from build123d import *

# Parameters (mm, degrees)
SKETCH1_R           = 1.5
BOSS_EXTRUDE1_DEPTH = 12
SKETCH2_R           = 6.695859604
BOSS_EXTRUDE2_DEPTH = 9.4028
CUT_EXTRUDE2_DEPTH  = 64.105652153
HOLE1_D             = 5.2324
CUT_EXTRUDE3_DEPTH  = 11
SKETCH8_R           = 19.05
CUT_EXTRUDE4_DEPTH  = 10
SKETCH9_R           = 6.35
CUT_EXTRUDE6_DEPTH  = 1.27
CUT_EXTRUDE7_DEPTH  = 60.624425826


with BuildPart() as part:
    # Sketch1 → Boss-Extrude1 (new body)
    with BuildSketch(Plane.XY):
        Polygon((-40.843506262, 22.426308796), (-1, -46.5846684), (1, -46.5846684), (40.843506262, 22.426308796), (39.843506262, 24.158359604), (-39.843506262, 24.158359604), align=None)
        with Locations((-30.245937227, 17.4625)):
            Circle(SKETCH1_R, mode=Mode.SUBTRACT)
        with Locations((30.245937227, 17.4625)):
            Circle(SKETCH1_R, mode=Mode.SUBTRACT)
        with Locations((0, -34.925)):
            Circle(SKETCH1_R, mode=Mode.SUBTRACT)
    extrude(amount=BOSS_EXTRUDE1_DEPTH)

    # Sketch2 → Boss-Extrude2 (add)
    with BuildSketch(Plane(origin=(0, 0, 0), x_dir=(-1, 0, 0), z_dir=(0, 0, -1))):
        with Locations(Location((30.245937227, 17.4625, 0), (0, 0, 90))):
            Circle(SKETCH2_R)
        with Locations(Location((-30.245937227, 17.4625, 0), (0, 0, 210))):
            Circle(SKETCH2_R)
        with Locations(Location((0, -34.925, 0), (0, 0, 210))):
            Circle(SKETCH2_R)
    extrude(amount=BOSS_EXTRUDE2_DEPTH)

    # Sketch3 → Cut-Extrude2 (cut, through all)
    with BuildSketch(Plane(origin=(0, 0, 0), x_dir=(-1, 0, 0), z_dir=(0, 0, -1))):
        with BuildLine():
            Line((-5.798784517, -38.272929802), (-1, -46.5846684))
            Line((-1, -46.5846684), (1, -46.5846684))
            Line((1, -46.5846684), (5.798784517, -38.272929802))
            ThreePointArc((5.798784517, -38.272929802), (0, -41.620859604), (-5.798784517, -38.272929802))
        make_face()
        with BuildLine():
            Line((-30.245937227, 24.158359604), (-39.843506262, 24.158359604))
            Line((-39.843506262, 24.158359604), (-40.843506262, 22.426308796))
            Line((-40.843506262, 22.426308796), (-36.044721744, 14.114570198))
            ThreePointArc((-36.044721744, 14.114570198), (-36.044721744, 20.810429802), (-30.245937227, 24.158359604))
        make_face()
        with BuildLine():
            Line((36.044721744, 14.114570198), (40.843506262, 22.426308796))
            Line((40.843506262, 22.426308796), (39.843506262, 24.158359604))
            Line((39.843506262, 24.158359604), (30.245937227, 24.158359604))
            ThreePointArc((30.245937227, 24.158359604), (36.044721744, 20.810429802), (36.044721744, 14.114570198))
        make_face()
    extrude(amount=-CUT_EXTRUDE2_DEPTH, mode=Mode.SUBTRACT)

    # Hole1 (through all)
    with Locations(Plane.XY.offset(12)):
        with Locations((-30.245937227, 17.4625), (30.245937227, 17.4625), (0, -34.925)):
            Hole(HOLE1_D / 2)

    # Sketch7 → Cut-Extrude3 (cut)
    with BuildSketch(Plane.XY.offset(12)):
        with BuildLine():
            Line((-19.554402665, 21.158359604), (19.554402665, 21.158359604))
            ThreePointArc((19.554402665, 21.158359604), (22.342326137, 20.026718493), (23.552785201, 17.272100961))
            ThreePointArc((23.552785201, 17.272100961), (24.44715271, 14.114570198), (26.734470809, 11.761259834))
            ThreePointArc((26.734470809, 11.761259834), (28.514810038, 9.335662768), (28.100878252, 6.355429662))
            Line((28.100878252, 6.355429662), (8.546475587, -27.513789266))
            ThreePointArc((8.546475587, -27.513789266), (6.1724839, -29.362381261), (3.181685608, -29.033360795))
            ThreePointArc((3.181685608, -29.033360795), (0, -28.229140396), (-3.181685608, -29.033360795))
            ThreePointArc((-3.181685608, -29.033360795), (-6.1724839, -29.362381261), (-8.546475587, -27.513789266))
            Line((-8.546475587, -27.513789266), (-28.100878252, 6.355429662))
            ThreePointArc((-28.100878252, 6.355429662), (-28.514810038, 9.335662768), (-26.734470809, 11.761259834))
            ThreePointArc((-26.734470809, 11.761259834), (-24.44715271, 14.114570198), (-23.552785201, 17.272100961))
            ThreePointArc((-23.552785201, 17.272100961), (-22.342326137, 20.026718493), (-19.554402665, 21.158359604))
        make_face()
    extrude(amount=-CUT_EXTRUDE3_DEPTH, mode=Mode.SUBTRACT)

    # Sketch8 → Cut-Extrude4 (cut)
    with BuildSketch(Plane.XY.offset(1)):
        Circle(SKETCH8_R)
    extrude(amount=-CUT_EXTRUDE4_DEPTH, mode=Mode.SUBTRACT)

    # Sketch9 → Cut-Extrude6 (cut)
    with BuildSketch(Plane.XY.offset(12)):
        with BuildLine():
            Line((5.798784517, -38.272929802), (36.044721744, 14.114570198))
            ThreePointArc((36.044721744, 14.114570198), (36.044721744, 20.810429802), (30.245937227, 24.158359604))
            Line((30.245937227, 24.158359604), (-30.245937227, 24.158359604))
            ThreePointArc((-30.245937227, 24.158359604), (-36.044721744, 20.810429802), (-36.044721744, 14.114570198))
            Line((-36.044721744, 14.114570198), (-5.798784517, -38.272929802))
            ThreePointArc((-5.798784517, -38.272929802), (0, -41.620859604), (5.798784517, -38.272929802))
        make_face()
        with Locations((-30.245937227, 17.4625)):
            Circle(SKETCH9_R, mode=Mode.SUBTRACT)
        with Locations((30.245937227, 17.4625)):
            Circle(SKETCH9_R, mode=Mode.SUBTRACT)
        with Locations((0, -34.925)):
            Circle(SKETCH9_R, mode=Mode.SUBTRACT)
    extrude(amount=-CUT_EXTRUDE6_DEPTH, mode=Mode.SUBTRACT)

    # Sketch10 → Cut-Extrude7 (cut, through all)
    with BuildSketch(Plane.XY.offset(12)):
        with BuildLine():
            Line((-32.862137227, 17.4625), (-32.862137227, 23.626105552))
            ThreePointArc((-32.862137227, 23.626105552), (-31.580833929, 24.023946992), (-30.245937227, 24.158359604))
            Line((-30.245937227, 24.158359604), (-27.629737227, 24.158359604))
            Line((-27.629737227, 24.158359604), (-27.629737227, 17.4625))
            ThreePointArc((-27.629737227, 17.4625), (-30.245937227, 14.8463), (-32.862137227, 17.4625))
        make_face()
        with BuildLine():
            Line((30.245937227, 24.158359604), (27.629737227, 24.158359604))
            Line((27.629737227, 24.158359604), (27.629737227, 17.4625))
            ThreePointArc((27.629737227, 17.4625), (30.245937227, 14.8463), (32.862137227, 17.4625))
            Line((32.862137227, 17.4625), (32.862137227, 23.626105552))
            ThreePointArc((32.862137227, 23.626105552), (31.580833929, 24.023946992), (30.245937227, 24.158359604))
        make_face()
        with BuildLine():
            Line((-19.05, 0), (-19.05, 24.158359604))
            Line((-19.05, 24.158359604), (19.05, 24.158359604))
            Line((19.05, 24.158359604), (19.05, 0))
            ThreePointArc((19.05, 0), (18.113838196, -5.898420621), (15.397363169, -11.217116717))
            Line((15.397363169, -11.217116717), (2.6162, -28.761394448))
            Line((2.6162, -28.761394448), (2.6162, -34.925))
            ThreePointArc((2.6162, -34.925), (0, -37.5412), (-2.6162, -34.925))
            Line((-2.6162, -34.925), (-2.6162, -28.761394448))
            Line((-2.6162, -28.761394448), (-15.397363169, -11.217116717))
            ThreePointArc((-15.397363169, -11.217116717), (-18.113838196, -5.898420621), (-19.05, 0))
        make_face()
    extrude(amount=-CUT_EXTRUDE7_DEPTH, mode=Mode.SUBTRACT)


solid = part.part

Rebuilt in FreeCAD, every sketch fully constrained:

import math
import FreeCAD as App
import Part
import Sketcher
from FreeCAD import Vector
Q = App.Units.Quantity


def add_polygon(sketch, points):
    """Adds a closed chain of lines whose ends are joined by coincident constraints."""
    first, n = sketch.GeometryCount, len(points)
    for a, b in zip(points, points[1:] + points[:1]):
        sketch.addGeometry(Part.LineSegment(App.Vector(*a, 0), App.Vector(*b, 0)), False)
    for i in range(n):
        sketch.addConstraint(Sketcher.Constraint("Coincident", first + i, 2, first + (i + 1) % n, 1))

doc = App.newDocument("Part")
params = doc.addObject("Spreadsheet::Sheet", "Params")
for row, (alias, value) in enumerate([
    ("sketch1_diameter", "3 mm"),
    ("sketch1_width", "2 mm"),
    ("sketch1_length", "2 mm"),
    ("pad1_length", "12 mm"),
    ("pad2_length", "9.4028 mm"),
    ("sketch3_width", "2 mm"),
    ("hole_diameter", "5.2324 mm"),
    ("sketch5_radius", "4 mm"),
    ("pocket2_length", "11 mm"),
    ("sketch6_diameter", "38.1 mm"),
    ("pocket3_length", "10 mm"),
    ("sketch7_diameter", "12.7 mm"),
    ("pocket4_length", "1.27 mm"),
    ("sketch8_radius", "19.05 mm"),
], start=1):
    params.set(f"A{row}", alias)
    params.set(f"B{row}", "=" + value)
    params.setAlias(f"B{row}", alias)

body = doc.addObject("PartDesign::Body", "Body")

sketch1 = body.newObject("Sketcher::SketchObject", "Sketch")
sketch1.AttachmentSupport = (doc.getObject("XY_Plane"), [""])
sketch1.MapMode = "FlatFace"
add_polygon(sketch1, [(-40.8, 22.4), (-1, -46.6), (1, -46.6), (40.8, 22.4), (39.8, 24.2), (-39.8, 24.2)])
sketch1.addGeometry(Part.Circle(Vector(0, -34.9, 0), Vector(0, 0, 1), 1.5), False)
sketch1.addGeometry(Part.Circle(Vector(-30.2, 17.5, 0), Vector(0, 0, 1), 1.5), False)
sketch1.addGeometry(Part.Circle(Vector(30.2, 17.5, 0), Vector(0, 0, 1), 1.5), False)
sketch1.addConstraint([
    Sketcher.Constraint("Horizontal", 1),
    Sketcher.Constraint("Horizontal", 4),
    Sketcher.Constraint("Equal", 6, 7),
    Sketcher.Constraint("Equal", 7, 8),
    Sketcher.Constraint("Symmetric", 7, 3, 8, 3, -2),
    Sketcher.Constraint("Symmetric", 2, 2, 5, 2, -2),
    Sketcher.Constraint("PointOnObject", 6, 3, -2),
    Sketcher.Constraint("Parallel", 0, 3),
    Sketcher.Constraint("Parallel", 2, 5),
    Sketcher.Constraint("Equal", 0, 2),
    Sketcher.Constraint("Diameter", 6, Q("3 mm")),
    Sketcher.Constraint("DistanceX", 1, 1, 1, 2, Q("2 mm")),
    Sketcher.Constraint("Angle", 0, Q("-60 deg")),
    Sketcher.Constraint("Distance", 3, Q("2 mm")),
    Sketcher.Constraint("DistanceY", 6, 3, -1, 1, Q("34.925 mm")),
    Sketcher.Constraint("DistanceY", -1, 1, 7, 3, Q("17.4625 mm")),
    Sketcher.Constraint("DistanceX", 4, 2, 4, 1, Q("79.687013 mm")),
    Sketcher.Constraint("DistanceY", 0, 2, -1, 1, Q("46.584668 mm")),
    Sketcher.Constraint("DistanceX", 8, 3, 2, 2, Q("10.597569 mm")),
])
sketch1.setExpression("Constraints[16]", "Params.sketch1_diameter")
sketch1.setExpression("Constraints[17]", "Params.sketch1_width")
sketch1.setExpression("Constraints[19]", "Params.sketch1_length")
pad1 = body.newObject("PartDesign::Pad", "Pad")
pad1.Profile = sketch1
pad1.setExpression("Length", "Params.pad1_length")

sketch2 = body.newObject("Sketcher::SketchObject", "Sketch001")
sketch2.AttachmentSupport = (doc.getObject("XY_Plane"), [""])
sketch2.MapMode = "FlatFace"
sketch2.addGeometry([
    Part.Circle(Vector(-30, 17, 0), Vector(0, 0, 1), 7),
    Part.Circle(Vector(30, 17, 0), Vector(0, 0, 1), 7),
    Part.Circle(Vector(0, -35, 0), Vector(0, 0, 1), 7),
], False)
sketch2.addConstraint([
    Sketcher.Constraint("Equal", 0, 1),
    Sketcher.Constraint("Equal", 1, 2),
    Sketcher.Constraint("Symmetric", 0, 3, 1, 3, -2),
    Sketcher.Constraint("PointOnObject", 2, 3, -2),
    Sketcher.Constraint("Diameter", 0, Q("13.391719 mm")),
    Sketcher.Constraint("DistanceY", 2, 3, -1, 1, Q("34.925 mm")),
    Sketcher.Constraint("DistanceY", -1, 1, 0, 3, Q("17.4625 mm")),
    Sketcher.Constraint("DistanceX", 0, 3, -1, 1, Q("30.245937 mm")),
])
pad2 = body.newObject("PartDesign::Pad", "Pad001")
pad2.Profile = sketch2
pad2.setExpression("Length", "Params.pad2_length")
pad2.Reversed = True

sketch3 = body.newObject("Sketcher::SketchObject", "Sketch002")
sketch3.AttachmentSupport = (doc.getObject("XY_Plane"), [""])
sketch3.MapMode = "FlatFace"
sketch3.addGeometry([
    Part.LineSegment(Vector(5.8, -38.3, 0), Vector(1, -46.6, 0)),
    Part.LineSegment(Vector(1, -46.6, 0), Vector(-1, -46.6, 0)),
    Part.LineSegment(Vector(-1, -46.6, 0), Vector(-5.8, -38.3, 0)),
    Part.ArcOfCircle(Part.Circle(Vector(0, -34.9, 0), Vector(0, 0, 1), 6.7), math.radians(-150), math.radians(-30)),
    Part.LineSegment(Vector(30.2, 24.2, 0), Vector(39.8, 24.2, 0)),
    Part.LineSegment(Vector(39.8, 24.2, 0), Vector(40.8, 22.4, 0)),
    Part.LineSegment(Vector(40.8, 22.4, 0), Vector(36, 14.1, 0)),
    Part.ArcOfCircle(Part.Circle(Vector(30.2, 17.5, 0), Vector(0, 0, 1), 6.7), math.radians(-30), math.radians(90)),
    Part.LineSegment(Vector(-36, 14.1, 0), Vector(-40.8, 22.4, 0)),
    Part.LineSegment(Vector(-40.8, 22.4, 0), Vector(-39.8, 24.2, 0)),
    Part.LineSegment(Vector(-39.8, 24.2, 0), Vector(-30.2, 24.2, 0)),
    Part.ArcOfCircle(Part.Circle(Vector(-30.2, 17.5, 0), Vector(0, 0, 1), 6.7), math.radians(90), math.radians(210)),
], False)
sketch3.addConstraint([
    Sketcher.Constraint("Coincident", 0, 2, 1, 1),
    Sketcher.Constraint("Coincident", 1, 2, 2, 1),
    Sketcher.Constraint("Tangent", 2, 2, 3, 1),
    Sketcher.Constraint("Tangent", 3, 2, 0, 1),
    Sketcher.Constraint("Coincident", 4, 2, 5, 1),
    Sketcher.Constraint("Coincident", 5, 2, 6, 1),
    Sketcher.Constraint("Tangent", 6, 2, 7, 1),
    Sketcher.Constraint("Tangent", 7, 2, 4, 1),
    Sketcher.Constraint("Coincident", 8, 2, 9, 1),
    Sketcher.Constraint("Coincident", 9, 2, 10, 1),
    Sketcher.Constraint("Tangent", 10, 2, 11, 1),
    Sketcher.Constraint("Tangent", 11, 2, 8, 1),
    Sketcher.Constraint("Horizontal", 1),
    Sketcher.Constraint("Horizontal", 4),
    Sketcher.Constraint("Horizontal", 10),
    Sketcher.Constraint("Equal", 3, 7),
    Sketcher.Constraint("Equal", 7, 11),
    Sketcher.Constraint("Symmetric", 7, 3, 11, 3, -2),
    Sketcher.Constraint("Symmetric", 2, 2, 3, 2, -2),
    Sketcher.Constraint("Symmetric", 5, 2, 8, 2, -2),
    Sketcher.Constraint("Parallel", 2, 5),
    Sketcher.Constraint("Parallel", 0, 6),
    Sketcher.Constraint("Parallel", 6, 9),
    Sketcher.Constraint("Equal", 2, 6),
    Sketcher.Constraint("DistanceX", 1, 2, 1, 1, Q("2 mm")),
    Sketcher.Constraint("Angle", 0, Q("-120 deg")),
    Sketcher.Constraint("Radius", 3, Q("6.69586 mm")),
    Sketcher.Constraint("DistanceY", 3, 3, -1, 1, Q("34.925 mm")),
    Sketcher.Constraint("DistanceY", -1, 1, 7, 3, Q("17.4625 mm")),
    Sketcher.Constraint("DistanceX", -1, 1, 6, 2, Q("36.044722 mm")),
])
sketch3.setExpression("Constraints[24]", "Params.sketch3_width")
pocket1 = body.newObject("PartDesign::Pocket", "Pocket")
pocket1.Profile = sketch3
pocket1.Type = "ThroughAll"
pocket1.Reversed = True

sketch4 = body.newObject("Sketcher::SketchObject", "Sketch003")
sketch4.AttachmentSupport = (doc.getObject("XY_Plane"), [""])
sketch4.MapMode = "FlatFace"
sketch4.AttachmentOffset = App.Placement(Vector(0, 0, 12), App.Rotation())
sketch4.addGeometry([
    Part.Circle(Vector(-30.2, 17.5, 0), Vector(0, 0, 1), 2.6),
    Part.Circle(Vector(30.2, 17.5, 0), Vector(0, 0, 1), 2.6),
    Part.Circle(Vector(0, -34.9, 0), Vector(0, 0, 1), 2.6),
], False)
sketch4.addConstraint([
    Sketcher.Constraint("Equal", 0, 1),
    Sketcher.Constraint("Equal", 1, 2),
    Sketcher.Constraint("Symmetric", 0, 3, 1, 3, -2),
    Sketcher.Constraint("PointOnObject", 2, 3, -2),
    Sketcher.Constraint("Diameter", 0, Q("5.2324 mm")),
    Sketcher.Constraint("DistanceY", 2, 3, -1, 1, Q("34.925 mm")),
    Sketcher.Constraint("DistanceY", -1, 1, 0, 3, Q("17.4625 mm")),
    Sketcher.Constraint("DistanceX", 0, 3, -1, 1, Q("30.245937 mm")),
])
doc.recompute()
hole = body.newObject("PartDesign::Hole", "Hole")
hole.Profile = sketch4
hole.ThreadType = "None"
hole.setExpression("Diameter", "Params.hole_diameter")
hole.DepthType = "ThroughAll"

sketch5 = body.newObject("Sketcher::SketchObject", "Sketch004")
sketch5.AttachmentSupport = (doc.getObject("XY_Plane"), [""])
sketch5.MapMode = "FlatFace"
sketch5.AttachmentOffset = App.Placement(Vector(0, 0, 12), App.Rotation())
sketch5.addGeometry([
    Part.LineSegment(Vector(19.6, 21.2, 0), Vector(-19.6, 21.2, 0)),
    Part.ArcOfCircle(Part.Circle(Vector(-19.6, 17.2, 0), Vector(0, 0, 1), 4), math.radians(90), math.radians(178)),
    Part.ArcOfCircle(Part.Circle(Vector(-30.2, 17.5, 0), Vector(0, 0, 1), 6.7), math.radians(-58), math.radians(-2)),
    Part.ArcOfCircle(Part.Circle(Vector(-24.6, 8.4, 0), Vector(0, 0, 1), 4), math.radians(122), math.radians(210)),
    Part.LineSegment(Vector(-28.1, 6.4, 0), Vector(-8.5, -27.5, 0)),
    Part.ArcOfCircle(Part.Circle(Vector(-5.1, -25.5, 0), Vector(0, 0, 1), 4), math.radians(-150), math.radians(-62)),
    Part.ArcOfCircle(Part.Circle(Vector(0, -34.9, 0), Vector(0, 0, 1), 6.7), math.radians(62), math.radians(118)),
    Part.ArcOfCircle(Part.Circle(Vector(5.1, -25.5, 0), Vector(0, 0, 1), 4), math.radians(-118), math.radians(-30)),
    Part.LineSegment(Vector(8.5, -27.5, 0), Vector(28.1, 6.4, 0)),
    Part.ArcOfCircle(Part.Circle(Vector(24.6, 8.4, 0), Vector(0, 0, 1), 4), math.radians(-30), math.radians(58)),
    Part.ArcOfCircle(Part.Circle(Vector(30.2, 17.5, 0), Vector(0, 0, 1), 6.7), math.radians(-178), math.radians(-122)),
    Part.ArcOfCircle(Part.Circle(Vector(19.6, 17.2, 0), Vector(0, 0, 1), 4), math.radians(2), math.radians(90)),
], False)
sketch5.addConstraint([
    Sketcher.Constraint("Tangent", 0, 2, 1, 1),
    Sketcher.Constraint("Tangent", 1, 2, 2, 2),
    Sketcher.Constraint("Tangent", 2, 1, 3, 1),
    Sketcher.Constraint("Tangent", 3, 2, 4, 1),
    Sketcher.Constraint("Tangent", 4, 2, 5, 1),
    Sketcher.Constraint("Tangent", 5, 2, 6, 2),
    Sketcher.Constraint("Tangent", 6, 1, 7, 1),
    Sketcher.Constraint("Tangent", 7, 2, 8, 1),
    Sketcher.Constraint("Tangent", 8, 2, 9, 1),
    Sketcher.Constraint("Tangent", 9, 2, 10, 2),
    Sketcher.Constraint("Tangent", 10, 1, 11, 1),
    Sketcher.Constraint("Tangent", 11, 2, 0, 1),
    Sketcher.Constraint("Horizontal", 0),
    Sketcher.Constraint("Equal", 1, 3),
    Sketcher.Constraint("Equal", 3, 5),
    Sketcher.Constraint("Equal", 2, 6),
    Sketcher.Constraint("Equal", 5, 7),
    Sketcher.Constraint("Equal", 7, 9),
    Sketcher.Constraint("Equal", 6, 10),
    Sketcher.Constraint("Equal", 9, 11),
    Sketcher.Constraint("Symmetric", 5, 3, 7, 3, -2),
    Sketcher.Constraint("Symmetric", 3, 3, 9, 3, -2),
    Sketcher.Constraint("Horizontal", 2, 3, 10, 3),
    Sketcher.Constraint("Radius", 1, Q("4 mm")),
    Sketcher.Constraint("Angle", 4, Q("-60 deg")),
    Sketcher.Constraint("Radius", 2, Q("6.69586 mm")),
    Sketcher.Constraint("DistanceY", 6, 3, -1, 1, Q("34.925 mm")),
    Sketcher.Constraint("DistanceY", -1, 1, 2, 3, Q("17.4625 mm")),
    Sketcher.Constraint("DistanceY", -1, 1, 1, 2, Q("17.272101 mm")),
    Sketcher.Constraint("DistanceY", 2, 1, 1, 3, Q("5.3971 mm")),
    Sketcher.Constraint("DistanceX", 3, 3, 4, 2, Q("16.090301 mm")),
])
sketch5.setExpression("Constraints[23]", "Params.sketch5_radius")
pocket2 = body.newObject("PartDesign::Pocket", "Pocket001")
pocket2.Profile = sketch5
pocket2.setExpression("Length", "Params.pocket2_length")

sketch6 = body.newObject("Sketcher::SketchObject", "Sketch005")
sketch6.AttachmentSupport = (doc.getObject("XY_Plane"), [""])
sketch6.MapMode = "FlatFace"
sketch6.AttachmentOffset = App.Placement(Vector(0, 0, 1), App.Rotation())
sketch6.addGeometry(Part.Circle(Vector(0, 0, 0), Vector(0, 0, 1), 19), False)
sketch6.addConstraint([
    Sketcher.Constraint("Coincident", 0, 3, -1, 1),
    Sketcher.Constraint("Diameter", 0, Q("38.1 mm")),
])
sketch6.setExpression("Constraints[1]", "Params.sketch6_diameter")
pocket3 = body.newObject("PartDesign::Pocket", "Pocket002")
pocket3.Profile = sketch6
pocket3.setExpression("Length", "Params.pocket3_length")

sketch7 = body.newObject("Sketcher::SketchObject", "Sketch006")
sketch7.AttachmentSupport = (doc.getObject("XY_Plane"), [""])
sketch7.MapMode = "FlatFace"
sketch7.AttachmentOffset = App.Placement(Vector(0, 0, 12), App.Rotation())
sketch7.addGeometry([
    Part.LineSegment(Vector(6, -38, 0), Vector(36, 14, 0)),
    Part.ArcOfCircle(Part.Circle(Vector(30, 17, 0), Vector(0, 0, 1), 7), math.radians(-30), math.radians(90)),
    Part.LineSegment(Vector(30, 24, 0), Vector(-30, 24, 0)),
    Part.ArcOfCircle(Part.Circle(Vector(-30, 17, 0), Vector(0, 0, 1), 7), math.radians(90), math.radians(210)),
    Part.LineSegment(Vector(-36, 14, 0), Vector(-6, -38, 0)),
    Part.ArcOfCircle(Part.Circle(Vector(0, -35, 0), Vector(0, 0, 1), 7), math.radians(-150), math.radians(-30)),
    Part.Circle(Vector(0, -35, 0), Vector(0, 0, 1), 6),
    Part.Circle(Vector(-30, 17, 0), Vector(0, 0, 1), 6),
    Part.Circle(Vector(30, 17, 0), Vector(0, 0, 1), 6),
], False)
sketch7.addConstraint([
    Sketcher.Constraint("Tangent", 0, 2, 1, 1),
    Sketcher.Constraint("Tangent", 1, 2, 2, 1),
    Sketcher.Constraint("Tangent", 2, 2, 3, 1),
    Sketcher.Constraint("Tangent", 3, 2, 4, 1),
    Sketcher.Constraint("Tangent", 4, 2, 5, 1),
    Sketcher.Constraint("Tangent", 5, 2, 0, 1),
    Sketcher.Constraint("Horizontal", 2),
    Sketcher.Constraint("Coincident", 6, 3, 5, 3),
    Sketcher.Constraint("Coincident", 7, 3, 3, 3),
    Sketcher.Constraint("Coincident", 8, 3, 1, 3),
    Sketcher.Constraint("Equal", 1, 3),
    Sketcher.Constraint("Equal", 3, 5),
    Sketcher.Constraint("Equal", 6, 7),
    Sketcher.Constraint("Equal", 7, 8),
    Sketcher.Constraint("Symmetric", 0, 2, 3, 2, -2),
    Sketcher.Constraint("Diameter", 6, Q("12.7 mm")),
    Sketcher.Constraint("Angle", 0, Q("60 deg")),
    Sketcher.Constraint("Radius", 1, Q("6.69586 mm")),
    Sketcher.Constraint("DistanceY", 5, 3, -1, 1, Q("34.925 mm")),
    Sketcher.Constraint("DistanceY", -1, 1, 1, 3, Q("17.4625 mm")),
])
sketch7.setExpression("Constraints[15]", "Params.sketch7_diameter")
pocket4 = body.newObject("PartDesign::Pocket", "Pocket003")
pocket4.Profile = sketch7
pocket4.setExpression("Length", "Params.pocket4_length")

sketch8 = body.newObject("Sketcher::SketchObject", "Sketch007")
sketch8.AttachmentSupport = (doc.getObject("XY_Plane"), [""])
sketch8.MapMode = "FlatFace"
sketch8.AttachmentOffset = App.Placement(Vector(0, 0, 12), App.Rotation())
sketch8.addGeometry([
    Part.LineSegment(Vector(-32.9, 23.6, 0), Vector(-32.9, 17.5, 0)),
    Part.ArcOfCircle(Part.Circle(Vector(-30.2, 17.5, 0), Vector(0, 0, 1), 2.6), math.radians(180), math.radians(360)),
    Part.LineSegment(Vector(-27.6, 17.5, 0), Vector(-27.6, 24.2, 0)),
    Part.LineSegment(Vector(-27.6, 24.2, 0), Vector(-30.2, 24.2, 0)),
    Part.ArcOfCircle(Part.Circle(Vector(-30.2, 17.5, 0), Vector(0, 0, 1), 6.7), math.radians(90), math.radians(113)),
    Part.LineSegment(Vector(30.2, 24.2, 0), Vector(27.6, 24.2, 0)),
    Part.LineSegment(Vector(27.6, 24.2, 0), Vector(27.6, 17.5, 0)),
    Part.ArcOfCircle(Part.Circle(Vector(30.2, 17.5, 0), Vector(0, 0, 1), 2.6), math.radians(180), math.radians(360)),
    Part.LineSegment(Vector(32.9, 17.5, 0), Vector(32.9, 23.6, 0)),
    Part.ArcOfCircle(Part.Circle(Vector(30.2, 17.5, 0), Vector(0, 0, 1), 6.7), math.radians(67), math.radians(90)),
    Part.LineSegment(Vector(-19.1, 24.2, 0), Vector(-19.1, 0, 0)),
    Part.ArcOfCircle(Part.Circle(Vector(0, 0, 0), Vector(0, 0, 1), 19), math.radians(180), math.radians(216)),
    Part.LineSegment(Vector(-15.4, -11.2, 0), Vector(-2.6, -28.8, 0)),
    Part.LineSegment(Vector(-2.6, -28.8, 0), Vector(-2.6, -34.9, 0)),
    Part.ArcOfCircle(Part.Circle(Vector(0, -34.9, 0), Vector(0, 0, 1), 2.6), math.radians(180), math.radians(360)),
    Part.LineSegment(Vector(2.6, -34.9, 0), Vector(2.6, -28.8, 0)),
    Part.LineSegment(Vector(2.6, -28.8, 0), Vector(15.4, -11.2, 0)),
    Part.ArcOfCircle(Part.Circle(Vector(0, 0, 0), Vector(0, 0, 1), 19), math.radians(-36), math.radians(0)),
    Part.LineSegment(Vector(19.1, 0, 0), Vector(19.1, 24.2, 0)),
    Part.LineSegment(Vector(19.1, 24.2, 0), Vector(-19.1, 24.2, 0)),
], False)
sketch8.addConstraint([
    Sketcher.Constraint("Tangent", 0, 2, 1, 1),
    Sketcher.Constraint("Tangent", 1, 2, 2, 1),
    Sketcher.Constraint("Coincident", 2, 2, 3, 1),
    Sketcher.Constraint("Tangent", 3, 2, 4, 1),
    Sketcher.Constraint("Coincident", 4, 2, 0, 1),
    Sketcher.Constraint("Coincident", 5, 2, 6, 1),
    Sketcher.Constraint("Tangent", 6, 2, 7, 1),
    Sketcher.Constraint("Tangent", 7, 2, 8, 1),
    Sketcher.Constraint("Coincident", 8, 2, 9, 1),
    Sketcher.Constraint("Tangent", 9, 2, 5, 1),
    Sketcher.Constraint("Tangent", 10, 2, 11, 1),
    Sketcher.Constraint("Tangent", 11, 2, 12, 1),
    Sketcher.Constraint("Coincident", 12, 2, 13, 1),
    Sketcher.Constraint("Tangent", 13, 2, 14, 1),
    Sketcher.Constraint("Tangent", 14, 2, 15, 1),
    Sketcher.Constraint("Coincident", 15, 2, 16, 1),
    Sketcher.Constraint("Tangent", 16, 2, 17, 1),
    Sketcher.Constraint("Tangent", 17, 2, 18, 1),
    Sketcher.Constraint("Coincident", 18, 2, 19, 1),
    Sketcher.Constraint("Coincident", 19, 2, 10, 1),
    Sketcher.Constraint("Vertical", 0),
    Sketcher.Constraint("Vertical", 2),
    Sketcher.Constraint("Horizontal", 3),
    Sketcher.Constraint("Horizontal", 5),
    Sketcher.Constraint("Vertical", 6),
    Sketcher.Constraint("Vertical", 8),
    Sketcher.Constraint("Vertical", 10),
    Sketcher.Constraint("Vertical", 13),
    Sketcher.Constraint("Vertical", 15),
    Sketcher.Constraint("Vertical", 18),
    Sketcher.Constraint("Horizontal", 19),
    Sketcher.Constraint("Coincident", 11, 3, -1, 1),
    Sketcher.Constraint("Coincident", 17, 3, -1, 1),
    Sketcher.Constraint("Coincident", 4, 3, 1, 3),
    Sketcher.Constraint("Coincident", 9, 3, 7, 3),
    Sketcher.Constraint("Equal", 1, 7),
    Sketcher.Constraint("Equal", 4, 9),
    Sketcher.Constraint("Equal", 7, 14),
    Sketcher.Constraint("Equal", 11, 17),
    Sketcher.Constraint("Symmetric", 1, 3, 7, 3, -2),
    Sketcher.Constraint("Symmetric", 12, 2, 15, 2, -2),
    Sketcher.Constraint("Horizontal", 9, 2, 18, 2),
    Sketcher.Constraint("Equal", 8, 13),
    Sketcher.Constraint("Radius", 11, Q("19.05 mm")),
    Sketcher.Constraint("Radius", 1, Q("2.6162 mm")),
    Sketcher.Constraint("Radius", 4, Q("6.69586 mm")),
    Sketcher.Constraint("DistanceY", 14, 3, -1, 1, Q("34.925 mm")),
    Sketcher.Constraint("DistanceY", 10, 2, 10, 1, Q("24.15836 mm")),
    Sketcher.Constraint("DistanceX", 1, 3, -1, 1, Q("30.245937 mm")),
])
sketch8.setExpression("Constraints[43]", "Params.sketch8_radius")
pocket5 = body.newObject("PartDesign::Pocket", "Pocket004")
pocket5.Profile = sketch8
pocket5.Type = "ThroughAll"

doc.recompute()
